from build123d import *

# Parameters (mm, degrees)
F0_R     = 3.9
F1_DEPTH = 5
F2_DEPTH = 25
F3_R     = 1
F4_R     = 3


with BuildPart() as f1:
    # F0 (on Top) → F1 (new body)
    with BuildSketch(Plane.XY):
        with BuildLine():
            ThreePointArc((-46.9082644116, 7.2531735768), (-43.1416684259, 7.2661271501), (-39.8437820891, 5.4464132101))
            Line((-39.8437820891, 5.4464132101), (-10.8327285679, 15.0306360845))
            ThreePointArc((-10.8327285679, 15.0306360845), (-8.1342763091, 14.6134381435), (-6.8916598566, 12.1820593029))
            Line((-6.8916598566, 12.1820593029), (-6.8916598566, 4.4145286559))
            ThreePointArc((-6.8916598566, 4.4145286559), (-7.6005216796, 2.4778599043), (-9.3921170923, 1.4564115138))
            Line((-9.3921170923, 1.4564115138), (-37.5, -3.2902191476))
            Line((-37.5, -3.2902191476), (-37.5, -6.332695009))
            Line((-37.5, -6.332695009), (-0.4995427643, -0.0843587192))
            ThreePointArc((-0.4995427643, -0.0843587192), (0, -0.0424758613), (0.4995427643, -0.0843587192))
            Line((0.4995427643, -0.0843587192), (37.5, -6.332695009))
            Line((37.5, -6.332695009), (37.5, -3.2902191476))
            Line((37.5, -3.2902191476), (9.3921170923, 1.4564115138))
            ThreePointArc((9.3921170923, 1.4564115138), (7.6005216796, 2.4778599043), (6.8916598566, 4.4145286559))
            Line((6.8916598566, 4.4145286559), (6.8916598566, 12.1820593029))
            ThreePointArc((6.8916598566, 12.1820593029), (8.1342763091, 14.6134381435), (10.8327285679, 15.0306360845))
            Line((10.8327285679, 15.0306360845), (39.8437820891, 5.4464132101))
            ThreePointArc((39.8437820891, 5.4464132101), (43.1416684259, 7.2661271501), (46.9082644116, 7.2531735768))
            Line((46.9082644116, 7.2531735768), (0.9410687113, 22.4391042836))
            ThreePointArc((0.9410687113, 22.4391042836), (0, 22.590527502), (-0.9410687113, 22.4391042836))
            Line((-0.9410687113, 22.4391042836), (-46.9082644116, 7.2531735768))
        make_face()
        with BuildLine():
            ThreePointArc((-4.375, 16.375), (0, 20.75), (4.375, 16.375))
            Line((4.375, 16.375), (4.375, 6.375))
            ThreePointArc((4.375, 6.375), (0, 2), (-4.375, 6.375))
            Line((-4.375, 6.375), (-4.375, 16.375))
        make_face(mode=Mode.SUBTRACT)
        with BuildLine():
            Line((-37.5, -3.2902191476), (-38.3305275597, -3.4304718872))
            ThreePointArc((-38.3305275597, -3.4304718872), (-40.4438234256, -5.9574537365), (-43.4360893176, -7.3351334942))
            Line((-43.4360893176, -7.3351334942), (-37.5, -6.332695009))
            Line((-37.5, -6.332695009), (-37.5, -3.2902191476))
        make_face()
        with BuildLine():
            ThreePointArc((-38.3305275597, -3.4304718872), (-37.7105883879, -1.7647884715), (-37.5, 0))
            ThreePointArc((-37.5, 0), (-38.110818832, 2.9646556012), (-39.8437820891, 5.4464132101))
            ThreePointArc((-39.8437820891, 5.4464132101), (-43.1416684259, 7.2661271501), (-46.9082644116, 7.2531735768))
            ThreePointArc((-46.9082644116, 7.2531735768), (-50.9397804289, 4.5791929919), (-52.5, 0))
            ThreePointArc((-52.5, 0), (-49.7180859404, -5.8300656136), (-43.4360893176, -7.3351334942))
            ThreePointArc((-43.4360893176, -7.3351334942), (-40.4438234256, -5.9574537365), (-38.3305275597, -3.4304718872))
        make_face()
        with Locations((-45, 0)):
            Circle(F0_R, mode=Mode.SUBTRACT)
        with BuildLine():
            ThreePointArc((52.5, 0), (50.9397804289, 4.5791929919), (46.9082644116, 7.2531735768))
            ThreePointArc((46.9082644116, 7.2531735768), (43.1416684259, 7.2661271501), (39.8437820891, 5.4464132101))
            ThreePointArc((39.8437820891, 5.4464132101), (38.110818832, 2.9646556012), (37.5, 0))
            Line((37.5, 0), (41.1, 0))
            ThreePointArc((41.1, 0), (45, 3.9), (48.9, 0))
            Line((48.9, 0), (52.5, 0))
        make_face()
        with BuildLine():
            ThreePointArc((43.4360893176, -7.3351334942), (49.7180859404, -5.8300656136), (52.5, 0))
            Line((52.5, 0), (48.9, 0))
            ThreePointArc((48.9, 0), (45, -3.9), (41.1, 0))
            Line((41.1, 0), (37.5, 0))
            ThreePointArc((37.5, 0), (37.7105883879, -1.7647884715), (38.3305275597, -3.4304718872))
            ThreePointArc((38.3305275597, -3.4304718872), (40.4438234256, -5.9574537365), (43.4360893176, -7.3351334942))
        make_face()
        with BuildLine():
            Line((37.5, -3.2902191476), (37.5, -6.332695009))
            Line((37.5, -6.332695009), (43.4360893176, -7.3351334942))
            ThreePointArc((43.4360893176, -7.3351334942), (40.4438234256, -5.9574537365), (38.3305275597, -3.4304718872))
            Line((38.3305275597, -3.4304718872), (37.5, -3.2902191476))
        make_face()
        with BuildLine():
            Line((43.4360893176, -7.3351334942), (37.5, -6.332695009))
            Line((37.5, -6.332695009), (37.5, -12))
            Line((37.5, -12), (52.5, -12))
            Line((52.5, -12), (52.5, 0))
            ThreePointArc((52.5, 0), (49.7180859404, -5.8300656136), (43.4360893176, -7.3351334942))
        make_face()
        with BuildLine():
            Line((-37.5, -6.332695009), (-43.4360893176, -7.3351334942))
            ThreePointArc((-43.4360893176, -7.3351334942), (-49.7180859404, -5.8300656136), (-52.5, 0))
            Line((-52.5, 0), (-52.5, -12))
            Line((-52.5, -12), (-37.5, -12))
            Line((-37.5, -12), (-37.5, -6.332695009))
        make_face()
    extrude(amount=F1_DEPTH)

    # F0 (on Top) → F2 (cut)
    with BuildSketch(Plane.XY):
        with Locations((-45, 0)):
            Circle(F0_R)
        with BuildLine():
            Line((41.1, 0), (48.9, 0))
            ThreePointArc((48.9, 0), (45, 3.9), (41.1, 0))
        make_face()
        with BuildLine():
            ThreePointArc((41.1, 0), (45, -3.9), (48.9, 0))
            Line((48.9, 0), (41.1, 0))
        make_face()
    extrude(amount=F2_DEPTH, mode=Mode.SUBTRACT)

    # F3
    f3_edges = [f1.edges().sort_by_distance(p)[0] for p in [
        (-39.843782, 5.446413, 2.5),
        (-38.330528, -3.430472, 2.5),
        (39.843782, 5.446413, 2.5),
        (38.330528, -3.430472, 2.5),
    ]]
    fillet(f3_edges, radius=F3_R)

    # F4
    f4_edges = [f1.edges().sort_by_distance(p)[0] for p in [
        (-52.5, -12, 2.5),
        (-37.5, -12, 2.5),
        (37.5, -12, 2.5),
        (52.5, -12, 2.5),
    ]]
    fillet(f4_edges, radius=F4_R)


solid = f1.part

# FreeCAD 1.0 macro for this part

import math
import FreeCAD as App
import Part
import Sketcher

V = App.Vector


def edges_at(feature, points):
    """Names of the edges that pass closest to the given points."""
    edges = feature.Shape.Edges
    near = lambda p: min(range(len(edges)), key=lambda i: edges[i].distToShape(Part.Vertex(*p))[0])
    return sorted({f"Edge{near(p) + 1}" for p in points})

doc = App.newDocument("Part")
body = doc.addObject("PartDesign::Body", "Body")

sketch1 = doc.addObject("Sketcher::SketchObject", "Sketch")
body.addObject(sketch1)
sketch1.AttachmentSupport = (doc.XY_Plane, [""])
sketch1.MapMode = "FlatFace"
sketch1.addGeometry(Part.LineSegment(V(-37.5, -6.3, 0), V(-0.5, -0.1, 0)), False)
sketch1.addGeometry(Part.ArcOfCircle(Part.Circle(V(0, -3, 0), V(0, 0, 1), 3), math.radians(80.41), math.radians(99.59)), False)
sketch1.addGeometry(Part.LineSegment(V(0.5, -0.1, 0), V(37.5, -6.3, 0)), False)
sketch1.addGeometry(Part.LineSegment(V(37.5, -6.3, 0), V(37.5, -12, 0)), False)
sketch1.addGeometry(Part.LineSegment(V(37.5, -12, 0), V(52.5, -12, 0)), False)
sketch1.addGeometry(Part.LineSegment(V(52.5, -12, 0), V(52.5, 0, 0)), False)
sketch1.addGeometry(Part.ArcOfCircle(Part.Circle(V(45, 0, 0), V(0, 0, 1), 7.5), math.radians(0), math.radians(75)), False)
sketch1.addGeometry(Part.LineSegment(V(46.9, 7.3, 0), V(0.9, 22.4, 0)), False)
sketch1.addGeometry(Part.ArcOfCircle(Part.Circle(V(0, 19.6, 0), V(0, 0, 1), 3), math.radians(72), math.radians(108)), False)
sketch1.addGeometry(Part.LineSegment(V(-0.9, 22.4, 0), V(-46.9, 7.3, 0)), False)
sketch1.addGeometry(Part.ArcOfCircle(Part.Circle(V(-45, 0, 0), V(0, 0, 1), 7.5), math.radians(105), math.radians(180)), False)
sketch1.addGeometry(Part.LineSegment(V(-52.5, 0, 0), V(-52.5, -12, 0)), False)
sketch1.addGeometry(Part.LineSegment(V(-52.5, -12, 0), V(-37.5, -12, 0)), False)
sketch1.addGeometry(Part.LineSegment(V(-37.5, -12, 0), V(-37.5, -6.3, 0)), False)
sketch1.addGeometry(Part.LineSegment(V(37.5, -3.3, 0), V(9.4, 1.5, 0)), False)
sketch1.addGeometry(Part.ArcOfCircle(Part.Circle(V(9.9, 4.4, 0), V(0, 0, 1), 3), math.radians(180), math.radians(260)), False)
sketch1.addGeometry(Part.LineSegment(V(6.9, 4.4, 0), V(6.9, 12.2, 0)), False)
sketch1.addGeometry(Part.ArcOfCircle(Part.Circle(V(9.9, 12.2, 0), V(0, 0, 1), 3), math.radians(72), math.radians(180)), False)
sketch1.addGeometry(Part.LineSegment(V(10.8, 15, 0), V(39.8, 5.4, 0)), False)
sketch1.addGeometry(Part.ArcOfCircle(Part.Circle(V(45, 0, 0), V(0, 0, 1), 7.5), math.radians(133), math.radians(180)), False)
sketch1.addGeometry(Part.ArcOfCircle(Part.Circle(V(45, 0, 0), V(0, 0, 1), 7.5), math.radians(180), math.radians(207)), False)
sketch1.addGeometry(Part.LineSegment(V(38.3, -3.4, 0), V(37.5, -3.3, 0)), False)
sketch1.addGeometry(Part.Circle(V(-45, 0, 0), V(0, 0, 1), 3.9), False)
sketch1.addGeometry(Part.ArcOfCircle(Part.Circle(V(-45, 0, 0), V(0, 0, 1), 7.5), math.radians(0), math.radians(47)), False)
sketch1.addGeometry(Part.LineSegment(V(-39.8, 5.4, 0), V(-10.8, 15, 0)), False)
sketch1.addGeometry(Part.ArcOfCircle(Part.Circle(V(-9.9, 12.2, 0), V(0, 0, 1), 3), math.radians(0), math.radians(108)), False)
sketch1.addGeometry(Part.LineSegment(V(-6.9, 12.2, 0), V(-6.9, 4.4, 0)), False)
sketch1.addGeometry(Part.ArcOfCircle(Part.Circle(V(-9.9, 4.4, 0), V(0, 0, 1), 3), math.radians(-80), math.radians(0)), False)
sketch1.addGeometry(Part.LineSegment(V(-9.4, 1.5, 0), V(-37.5, -3.3, 0)), False)
sketch1.addGeometry(Part.LineSegment(V(-37.5, -3.3, 0), V(-38.3, -3.4, 0)), False)
sketch1.addGeometry(Part.ArcOfCircle(Part.Circle(V(-45, 0, 0), V(0, 0, 1), 7.5), math.radians(-27), math.radians(0)), False)
sketch1.addGeometry(Part.Circle(V(45, 0, 0), V(0, 0, 1), 3.9), False)
sketch1.addGeometry(Part.LineSegment(V(-4.4, 6.4, 0), V(-4.4, 16.4, 0)), False)
sketch1.addGeometry(Part.ArcOfCircle(Part.Circle(V(0, 16.4, 0), V(0, 0, 1), 4.4), math.radians(0), math.radians(180)), False)
sketch1.addGeometry(Part.LineSegment(V(4.4, 16.4, 0), V(4.4, 6.4, 0)), False)
sketch1.addGeometry(Part.ArcOfCircle(Part.Circle(V(0, 6.4, 0), V(0, 0, 1), 4.4), math.radians(180), math.radians(360)), False)
sketch1.addConstraint(Sketcher.Constraint("Tangent", 0, 2, 1, 2))
sketch1.addConstraint(Sketcher.Constraint("Tangent", 1, 1, 2, 1))
sketch1.addConstraint(Sketcher.Constraint("Coincident", 2, 2, 3, 1))
sketch1.addConstraint(Sketcher.Constraint("Coincident", 3, 2, 4, 1))
sketch1.addConstraint(Sketcher.Constraint("Coincident", 4, 2, 5, 1))
sketch1.addConstraint(Sketcher.Constraint("Tangent", 5, 2, 6, 1))
sketch1.addConstraint(Sketcher.Constraint("Coincident", 6, 2, 7, 1))
sketch1.addConstraint(Sketcher.Constraint("Tangent", 7, 2, 8, 1))
sketch1.addConstraint(Sketcher.Constraint("Tangent", 8, 2, 9, 1))
sketch1.addConstraint(Sketcher.Constraint("Coincident", 9, 2, 10, 1))
sketch1.addConstraint(Sketcher.Constraint("Tangent", 10, 2, 11, 1))
sketch1.addConstraint(Sketcher.Constraint("Coincident", 11, 2, 12, 1))
sketch1.addConstraint(Sketcher.Constraint("Coincident", 12, 2, 13, 1))
sketch1.addConstraint(Sketcher.Constraint("Coincident", 13, 2, 0, 1))
sketch1.addConstraint(Sketcher.Constraint("Tangent", 14, 2, 15, 2))
sketch1.addConstraint(Sketcher.Constraint("Tangent", 15, 1, 16, 1))
sketch1.addConstraint(Sketcher.Constraint("Tangent", 16, 2, 17, 2))
sketch1.addConstraint(Sketcher.Constraint("Tangent", 17, 1, 18, 1))
sketch1.addConstraint(Sketcher.Constraint("Coincident", 18, 2, 19, 1))
sketch1.addConstraint(Sketcher.Constraint("Tangent", 19, 2, 20, 1))
sketch1.addConstraint(Sketcher.Constraint("Coincident", 20, 2, 21, 1))
sketch1.addConstraint(Sketcher.Constraint("Coincident", 21, 2, 14, 1))
sketch1.addConstraint(Sketcher.Constraint("Coincident", 23, 2, 24, 1))
sketch1.addConstraint(Sketcher.Constraint("Tangent", 24, 2, 25, 2))
sketch1.addConstraint(Sketcher.Constraint("Tangent", 25, 1, 26, 1))
sketch1.addConstraint(Sketcher.Constraint("Tangent", 26, 2, 27, 2))
sketch1.addConstraint(Sketcher.Constraint("Tangent", 27, 1, 28, 1))
sketch1.addConstraint(Sketcher.Constraint("Coincident", 28, 2, 29, 1))
sketch1.addConstraint(Sketcher.Constraint("Coincident", 29, 2, 30, 1))
sketch1.addConstraint(Sketcher.Constraint("Tangent", 30, 2, 23, 1))
sketch1.addConstraint(Sketcher.Constraint("Tangent", 32, 2, 33, 2))
sketch1.addConstraint(Sketcher.Constraint("Tangent", 33, 1, 34, 1))
sketch1.addConstraint(Sketcher.Constraint("Tangent", 34, 2, 35, 2))
sketch1.addConstraint(Sketcher.Constraint("Tangent", 35, 1, 32, 1))
sketch1.addConstraint(Sketcher.Constraint("Vertical", 3))
sketch1.addConstraint(Sketcher.Constraint("Horizontal", 4))
sketch1.addConstraint(Sketcher.Constraint("Vertical", 5))
sketch1.addConstraint(Sketcher.Constraint("Vertical", 11))
sketch1.addConstraint(Sketcher.Constraint("Horizontal", 12))
sketch1.addConstraint(Sketcher.Constraint("Vertical", 13))
sketch1.addConstraint(Sketcher.Constraint("Vertical", 16))
sketch1.addConstraint(Sketcher.Constraint("Vertical", 26))
sketch1.addConstraint(Sketcher.Constraint("Vertical", 32))
sketch1.addConstraint(Sketcher.Constraint("Vertical", 34))
sketch1.addConstraint(Sketcher.Constraint("Coincident", 19, 3, 6, 3))
sketch1.addConstraint(Sketcher.Constraint("Coincident", 22, 3, 10, 3))
sketch1.addConstraint(Sketcher.Constraint("Coincident", 23, 3, 10, 3))
sketch1.addConstraint(Sketcher.Constraint("Coincident", 31, 3, 6, 3))
sketch1.addConstraint(Sketcher.Constraint("Equal", 1, 8))
sketch1.addConstraint(Sketcher.Constraint("Equal", 6, 10))
sketch1.addConstraint(Sketcher.Constraint("Equal", 8, 15))
sketch1.addConstraint(Sketcher.Constraint("Equal", 15, 17))
sketch1.addConstraint(Sketcher.Constraint("Equal", 10, 19))
sketch1.addConstraint(Sketcher.Constraint("Equal", 19, 20))
sketch1.addConstraint(Sketcher.Constraint("Equal", 20, 23))
sketch1.addConstraint(Sketcher.Constraint("Equal", 17, 25))
sketch1.addConstraint(Sketcher.Constraint("Equal", 25, 27))
sketch1.addConstraint(Sketcher.Constraint("Equal", 23, 30))
sketch1.addConstraint(Sketcher.Constraint("Equal", 22, 31))
sketch1.addConstraint(Sketcher.Constraint("Symmetric", 6, 3, 10, 3, -1, 1))
sketch1.addConstraint(Sketcher.Constraint("Symmetric", 17, 3, 25, 3, -2))
sketch1.addConstraint(Sketcher.Constraint("Symmetric", 0, 2, 1, 1, -2))
sketch1.addConstraint(Sketcher.Constraint("Symmetric", 7, 2, 8, 2, -2))
sketch1.addConstraint(Sketcher.Constraint("Symmetric", 3, 2, 12, 2, -2))
sketch1.addConstraint(Sketcher.Constraint("Symmetric", 18, 2, 23, 2, -2))
sketch1.addConstraint(Sketcher.Constraint("Symmetric", 14, 2, 27, 1, -2))
sketch1.addConstraint(Sketcher.Constraint("PointOnObject", 33, 3, -2))
sketch1.addConstraint(Sketcher.Constraint("PointOnObject", 19, 2, -1))
sketch1.addConstraint(Sketcher.Constraint("PointOnObject", 30, 2, -1))
sketch1.addConstraint(Sketcher.Constraint("Parallel", 2, 14))
sketch1.addConstraint(Sketcher.Constraint("Parallel", 7, 18))
sketch1.addConstraint(Sketcher.Constraint("Parallel", 14, 21))
sketch1.addConstraint(Sketcher.Constraint("Parallel", 28, 29))
sketch1.addConstraint(Sketcher.Constraint("Horizontal", 21, 2, 28, 2))
sketch1.addConstraint(Sketcher.Constraint("Vertical", 3, 2, 19, 2))
sketch1.addConstraint(Sketcher.Constraint("Vertical", 19, 2, 21, 2))
sketch1.addConstraint(Sketcher.Constraint("Radius", 1, 3.0))
sketch1.addConstraint(Sketcher.Constraint("Diameter", 22, 7.8))
sketch1.addConstraint(Sketcher.Constraint("Radius", 6, 7.5))
sketch1.addConstraint(Sketcher.Constraint("DistanceY", 5, 1, 5, 2, 12.0))
sketch1.addConstraint(Sketcher.Constraint("DistanceY", 32, 1, 32, 2, 10.0))
sketch1.addConstraint(Sketcher.Constraint("DistanceX", -1, 1, 6, 3, 45.0))
sketch1.addConstraint(Sketcher.Constraint("Radius", 33, 4.375))
sketch1.addConstraint(Sketcher.Constraint("DistanceY", -1, 1, 33, 3, 16.375))
sketch1.addConstraint(Sketcher.Constraint("DistanceY", 15, 3, 8, 3, 15.175999))
sketch1.addConstraint(Sketcher.Constraint("DistanceY", 16, 1, 16, 2, 7.767531))
sketch1.addConstraint(Sketcher.Constraint("Distance", 14, 28.505852))
sketch1.addConstraint(Sketcher.Constraint("Distance", 18, 30.553209))
sketch1.addConstraint(Sketcher.Constraint("DistanceY", 3, 2, 3, 1, 5.667305))
sketch1.addConstraint(Sketcher.Constraint("DistanceX", -1, 1, 15, 3, 9.89166))
sketch1.addConstraint(Sketcher.Constraint("DistanceY", -1, 1, 15, 3, 4.414529))
pad1 = doc.addObject("PartDesign::Pad", "Pad")
body.addObject(pad1)
pad1.Profile = sketch1
pad1.Length = 5

sketch2 = doc.addObject("Sketcher::SketchObject", "Sketch001")
body.addObject(sketch2)
sketch2.AttachmentSupport = (doc.XY_Plane, [""])
sketch2.MapMode = "FlatFace"
sketch2.addGeometry(Part.Circle(V(-45, 0, 0), V(0, 0, 1), 3.9), False)
sketch2.addGeometry(Part.Circle(V(45, 0, 0), V(0, 0, 1), 3.9), False)
sketch2.addConstraint(Sketcher.Constraint("Equal", 0, 1))
sketch2.addConstraint(Sketcher.Constraint("Symmetric", 0, 3, 1, 3, -1, 1))
sketch2.addConstraint(Sketcher.Constraint("PointOnObject", 0, 3, -1))
sketch2.addConstraint(Sketcher.Constraint("Diameter", 0, 7.8))
sketch2.addConstraint(Sketcher.Constraint("DistanceX", 0, 3, -1, 1, 45.0))
pocket1 = doc.addObject("PartDesign::Pocket", "Pocket")
body.addObject(pocket1)
pocket1.Profile = sketch2
pocket1.Length = 25
pocket1.Reversed = True
doc.recompute()

fillet = doc.addObject("PartDesign::Fillet", "Fillet")
body.addObject(fillet)
fillet.Base = (pocket1, edges_at(pocket1, [
    (-39.844, 5.446, 2.5),
    (-38.331, -3.43, 2.5),
    (39.844, 5.446, 2.5),
    (38.331, -3.43, 2.5),
]))
fillet.Radius = 1
doc.recompute()

fillet2 = doc.addObject("PartDesign::Fillet", "Fillet001")
body.addObject(fillet2)
fillet2.Base = (fillet, edges_at(fillet, [
    (-52.5, -12, 2.5),
    (-37.5, -12, 2.5),
    (37.5, -12, 2.5),
    (52.5, -12, 2.5),
]))
fillet2.Radius = 3

doc.recompute()
